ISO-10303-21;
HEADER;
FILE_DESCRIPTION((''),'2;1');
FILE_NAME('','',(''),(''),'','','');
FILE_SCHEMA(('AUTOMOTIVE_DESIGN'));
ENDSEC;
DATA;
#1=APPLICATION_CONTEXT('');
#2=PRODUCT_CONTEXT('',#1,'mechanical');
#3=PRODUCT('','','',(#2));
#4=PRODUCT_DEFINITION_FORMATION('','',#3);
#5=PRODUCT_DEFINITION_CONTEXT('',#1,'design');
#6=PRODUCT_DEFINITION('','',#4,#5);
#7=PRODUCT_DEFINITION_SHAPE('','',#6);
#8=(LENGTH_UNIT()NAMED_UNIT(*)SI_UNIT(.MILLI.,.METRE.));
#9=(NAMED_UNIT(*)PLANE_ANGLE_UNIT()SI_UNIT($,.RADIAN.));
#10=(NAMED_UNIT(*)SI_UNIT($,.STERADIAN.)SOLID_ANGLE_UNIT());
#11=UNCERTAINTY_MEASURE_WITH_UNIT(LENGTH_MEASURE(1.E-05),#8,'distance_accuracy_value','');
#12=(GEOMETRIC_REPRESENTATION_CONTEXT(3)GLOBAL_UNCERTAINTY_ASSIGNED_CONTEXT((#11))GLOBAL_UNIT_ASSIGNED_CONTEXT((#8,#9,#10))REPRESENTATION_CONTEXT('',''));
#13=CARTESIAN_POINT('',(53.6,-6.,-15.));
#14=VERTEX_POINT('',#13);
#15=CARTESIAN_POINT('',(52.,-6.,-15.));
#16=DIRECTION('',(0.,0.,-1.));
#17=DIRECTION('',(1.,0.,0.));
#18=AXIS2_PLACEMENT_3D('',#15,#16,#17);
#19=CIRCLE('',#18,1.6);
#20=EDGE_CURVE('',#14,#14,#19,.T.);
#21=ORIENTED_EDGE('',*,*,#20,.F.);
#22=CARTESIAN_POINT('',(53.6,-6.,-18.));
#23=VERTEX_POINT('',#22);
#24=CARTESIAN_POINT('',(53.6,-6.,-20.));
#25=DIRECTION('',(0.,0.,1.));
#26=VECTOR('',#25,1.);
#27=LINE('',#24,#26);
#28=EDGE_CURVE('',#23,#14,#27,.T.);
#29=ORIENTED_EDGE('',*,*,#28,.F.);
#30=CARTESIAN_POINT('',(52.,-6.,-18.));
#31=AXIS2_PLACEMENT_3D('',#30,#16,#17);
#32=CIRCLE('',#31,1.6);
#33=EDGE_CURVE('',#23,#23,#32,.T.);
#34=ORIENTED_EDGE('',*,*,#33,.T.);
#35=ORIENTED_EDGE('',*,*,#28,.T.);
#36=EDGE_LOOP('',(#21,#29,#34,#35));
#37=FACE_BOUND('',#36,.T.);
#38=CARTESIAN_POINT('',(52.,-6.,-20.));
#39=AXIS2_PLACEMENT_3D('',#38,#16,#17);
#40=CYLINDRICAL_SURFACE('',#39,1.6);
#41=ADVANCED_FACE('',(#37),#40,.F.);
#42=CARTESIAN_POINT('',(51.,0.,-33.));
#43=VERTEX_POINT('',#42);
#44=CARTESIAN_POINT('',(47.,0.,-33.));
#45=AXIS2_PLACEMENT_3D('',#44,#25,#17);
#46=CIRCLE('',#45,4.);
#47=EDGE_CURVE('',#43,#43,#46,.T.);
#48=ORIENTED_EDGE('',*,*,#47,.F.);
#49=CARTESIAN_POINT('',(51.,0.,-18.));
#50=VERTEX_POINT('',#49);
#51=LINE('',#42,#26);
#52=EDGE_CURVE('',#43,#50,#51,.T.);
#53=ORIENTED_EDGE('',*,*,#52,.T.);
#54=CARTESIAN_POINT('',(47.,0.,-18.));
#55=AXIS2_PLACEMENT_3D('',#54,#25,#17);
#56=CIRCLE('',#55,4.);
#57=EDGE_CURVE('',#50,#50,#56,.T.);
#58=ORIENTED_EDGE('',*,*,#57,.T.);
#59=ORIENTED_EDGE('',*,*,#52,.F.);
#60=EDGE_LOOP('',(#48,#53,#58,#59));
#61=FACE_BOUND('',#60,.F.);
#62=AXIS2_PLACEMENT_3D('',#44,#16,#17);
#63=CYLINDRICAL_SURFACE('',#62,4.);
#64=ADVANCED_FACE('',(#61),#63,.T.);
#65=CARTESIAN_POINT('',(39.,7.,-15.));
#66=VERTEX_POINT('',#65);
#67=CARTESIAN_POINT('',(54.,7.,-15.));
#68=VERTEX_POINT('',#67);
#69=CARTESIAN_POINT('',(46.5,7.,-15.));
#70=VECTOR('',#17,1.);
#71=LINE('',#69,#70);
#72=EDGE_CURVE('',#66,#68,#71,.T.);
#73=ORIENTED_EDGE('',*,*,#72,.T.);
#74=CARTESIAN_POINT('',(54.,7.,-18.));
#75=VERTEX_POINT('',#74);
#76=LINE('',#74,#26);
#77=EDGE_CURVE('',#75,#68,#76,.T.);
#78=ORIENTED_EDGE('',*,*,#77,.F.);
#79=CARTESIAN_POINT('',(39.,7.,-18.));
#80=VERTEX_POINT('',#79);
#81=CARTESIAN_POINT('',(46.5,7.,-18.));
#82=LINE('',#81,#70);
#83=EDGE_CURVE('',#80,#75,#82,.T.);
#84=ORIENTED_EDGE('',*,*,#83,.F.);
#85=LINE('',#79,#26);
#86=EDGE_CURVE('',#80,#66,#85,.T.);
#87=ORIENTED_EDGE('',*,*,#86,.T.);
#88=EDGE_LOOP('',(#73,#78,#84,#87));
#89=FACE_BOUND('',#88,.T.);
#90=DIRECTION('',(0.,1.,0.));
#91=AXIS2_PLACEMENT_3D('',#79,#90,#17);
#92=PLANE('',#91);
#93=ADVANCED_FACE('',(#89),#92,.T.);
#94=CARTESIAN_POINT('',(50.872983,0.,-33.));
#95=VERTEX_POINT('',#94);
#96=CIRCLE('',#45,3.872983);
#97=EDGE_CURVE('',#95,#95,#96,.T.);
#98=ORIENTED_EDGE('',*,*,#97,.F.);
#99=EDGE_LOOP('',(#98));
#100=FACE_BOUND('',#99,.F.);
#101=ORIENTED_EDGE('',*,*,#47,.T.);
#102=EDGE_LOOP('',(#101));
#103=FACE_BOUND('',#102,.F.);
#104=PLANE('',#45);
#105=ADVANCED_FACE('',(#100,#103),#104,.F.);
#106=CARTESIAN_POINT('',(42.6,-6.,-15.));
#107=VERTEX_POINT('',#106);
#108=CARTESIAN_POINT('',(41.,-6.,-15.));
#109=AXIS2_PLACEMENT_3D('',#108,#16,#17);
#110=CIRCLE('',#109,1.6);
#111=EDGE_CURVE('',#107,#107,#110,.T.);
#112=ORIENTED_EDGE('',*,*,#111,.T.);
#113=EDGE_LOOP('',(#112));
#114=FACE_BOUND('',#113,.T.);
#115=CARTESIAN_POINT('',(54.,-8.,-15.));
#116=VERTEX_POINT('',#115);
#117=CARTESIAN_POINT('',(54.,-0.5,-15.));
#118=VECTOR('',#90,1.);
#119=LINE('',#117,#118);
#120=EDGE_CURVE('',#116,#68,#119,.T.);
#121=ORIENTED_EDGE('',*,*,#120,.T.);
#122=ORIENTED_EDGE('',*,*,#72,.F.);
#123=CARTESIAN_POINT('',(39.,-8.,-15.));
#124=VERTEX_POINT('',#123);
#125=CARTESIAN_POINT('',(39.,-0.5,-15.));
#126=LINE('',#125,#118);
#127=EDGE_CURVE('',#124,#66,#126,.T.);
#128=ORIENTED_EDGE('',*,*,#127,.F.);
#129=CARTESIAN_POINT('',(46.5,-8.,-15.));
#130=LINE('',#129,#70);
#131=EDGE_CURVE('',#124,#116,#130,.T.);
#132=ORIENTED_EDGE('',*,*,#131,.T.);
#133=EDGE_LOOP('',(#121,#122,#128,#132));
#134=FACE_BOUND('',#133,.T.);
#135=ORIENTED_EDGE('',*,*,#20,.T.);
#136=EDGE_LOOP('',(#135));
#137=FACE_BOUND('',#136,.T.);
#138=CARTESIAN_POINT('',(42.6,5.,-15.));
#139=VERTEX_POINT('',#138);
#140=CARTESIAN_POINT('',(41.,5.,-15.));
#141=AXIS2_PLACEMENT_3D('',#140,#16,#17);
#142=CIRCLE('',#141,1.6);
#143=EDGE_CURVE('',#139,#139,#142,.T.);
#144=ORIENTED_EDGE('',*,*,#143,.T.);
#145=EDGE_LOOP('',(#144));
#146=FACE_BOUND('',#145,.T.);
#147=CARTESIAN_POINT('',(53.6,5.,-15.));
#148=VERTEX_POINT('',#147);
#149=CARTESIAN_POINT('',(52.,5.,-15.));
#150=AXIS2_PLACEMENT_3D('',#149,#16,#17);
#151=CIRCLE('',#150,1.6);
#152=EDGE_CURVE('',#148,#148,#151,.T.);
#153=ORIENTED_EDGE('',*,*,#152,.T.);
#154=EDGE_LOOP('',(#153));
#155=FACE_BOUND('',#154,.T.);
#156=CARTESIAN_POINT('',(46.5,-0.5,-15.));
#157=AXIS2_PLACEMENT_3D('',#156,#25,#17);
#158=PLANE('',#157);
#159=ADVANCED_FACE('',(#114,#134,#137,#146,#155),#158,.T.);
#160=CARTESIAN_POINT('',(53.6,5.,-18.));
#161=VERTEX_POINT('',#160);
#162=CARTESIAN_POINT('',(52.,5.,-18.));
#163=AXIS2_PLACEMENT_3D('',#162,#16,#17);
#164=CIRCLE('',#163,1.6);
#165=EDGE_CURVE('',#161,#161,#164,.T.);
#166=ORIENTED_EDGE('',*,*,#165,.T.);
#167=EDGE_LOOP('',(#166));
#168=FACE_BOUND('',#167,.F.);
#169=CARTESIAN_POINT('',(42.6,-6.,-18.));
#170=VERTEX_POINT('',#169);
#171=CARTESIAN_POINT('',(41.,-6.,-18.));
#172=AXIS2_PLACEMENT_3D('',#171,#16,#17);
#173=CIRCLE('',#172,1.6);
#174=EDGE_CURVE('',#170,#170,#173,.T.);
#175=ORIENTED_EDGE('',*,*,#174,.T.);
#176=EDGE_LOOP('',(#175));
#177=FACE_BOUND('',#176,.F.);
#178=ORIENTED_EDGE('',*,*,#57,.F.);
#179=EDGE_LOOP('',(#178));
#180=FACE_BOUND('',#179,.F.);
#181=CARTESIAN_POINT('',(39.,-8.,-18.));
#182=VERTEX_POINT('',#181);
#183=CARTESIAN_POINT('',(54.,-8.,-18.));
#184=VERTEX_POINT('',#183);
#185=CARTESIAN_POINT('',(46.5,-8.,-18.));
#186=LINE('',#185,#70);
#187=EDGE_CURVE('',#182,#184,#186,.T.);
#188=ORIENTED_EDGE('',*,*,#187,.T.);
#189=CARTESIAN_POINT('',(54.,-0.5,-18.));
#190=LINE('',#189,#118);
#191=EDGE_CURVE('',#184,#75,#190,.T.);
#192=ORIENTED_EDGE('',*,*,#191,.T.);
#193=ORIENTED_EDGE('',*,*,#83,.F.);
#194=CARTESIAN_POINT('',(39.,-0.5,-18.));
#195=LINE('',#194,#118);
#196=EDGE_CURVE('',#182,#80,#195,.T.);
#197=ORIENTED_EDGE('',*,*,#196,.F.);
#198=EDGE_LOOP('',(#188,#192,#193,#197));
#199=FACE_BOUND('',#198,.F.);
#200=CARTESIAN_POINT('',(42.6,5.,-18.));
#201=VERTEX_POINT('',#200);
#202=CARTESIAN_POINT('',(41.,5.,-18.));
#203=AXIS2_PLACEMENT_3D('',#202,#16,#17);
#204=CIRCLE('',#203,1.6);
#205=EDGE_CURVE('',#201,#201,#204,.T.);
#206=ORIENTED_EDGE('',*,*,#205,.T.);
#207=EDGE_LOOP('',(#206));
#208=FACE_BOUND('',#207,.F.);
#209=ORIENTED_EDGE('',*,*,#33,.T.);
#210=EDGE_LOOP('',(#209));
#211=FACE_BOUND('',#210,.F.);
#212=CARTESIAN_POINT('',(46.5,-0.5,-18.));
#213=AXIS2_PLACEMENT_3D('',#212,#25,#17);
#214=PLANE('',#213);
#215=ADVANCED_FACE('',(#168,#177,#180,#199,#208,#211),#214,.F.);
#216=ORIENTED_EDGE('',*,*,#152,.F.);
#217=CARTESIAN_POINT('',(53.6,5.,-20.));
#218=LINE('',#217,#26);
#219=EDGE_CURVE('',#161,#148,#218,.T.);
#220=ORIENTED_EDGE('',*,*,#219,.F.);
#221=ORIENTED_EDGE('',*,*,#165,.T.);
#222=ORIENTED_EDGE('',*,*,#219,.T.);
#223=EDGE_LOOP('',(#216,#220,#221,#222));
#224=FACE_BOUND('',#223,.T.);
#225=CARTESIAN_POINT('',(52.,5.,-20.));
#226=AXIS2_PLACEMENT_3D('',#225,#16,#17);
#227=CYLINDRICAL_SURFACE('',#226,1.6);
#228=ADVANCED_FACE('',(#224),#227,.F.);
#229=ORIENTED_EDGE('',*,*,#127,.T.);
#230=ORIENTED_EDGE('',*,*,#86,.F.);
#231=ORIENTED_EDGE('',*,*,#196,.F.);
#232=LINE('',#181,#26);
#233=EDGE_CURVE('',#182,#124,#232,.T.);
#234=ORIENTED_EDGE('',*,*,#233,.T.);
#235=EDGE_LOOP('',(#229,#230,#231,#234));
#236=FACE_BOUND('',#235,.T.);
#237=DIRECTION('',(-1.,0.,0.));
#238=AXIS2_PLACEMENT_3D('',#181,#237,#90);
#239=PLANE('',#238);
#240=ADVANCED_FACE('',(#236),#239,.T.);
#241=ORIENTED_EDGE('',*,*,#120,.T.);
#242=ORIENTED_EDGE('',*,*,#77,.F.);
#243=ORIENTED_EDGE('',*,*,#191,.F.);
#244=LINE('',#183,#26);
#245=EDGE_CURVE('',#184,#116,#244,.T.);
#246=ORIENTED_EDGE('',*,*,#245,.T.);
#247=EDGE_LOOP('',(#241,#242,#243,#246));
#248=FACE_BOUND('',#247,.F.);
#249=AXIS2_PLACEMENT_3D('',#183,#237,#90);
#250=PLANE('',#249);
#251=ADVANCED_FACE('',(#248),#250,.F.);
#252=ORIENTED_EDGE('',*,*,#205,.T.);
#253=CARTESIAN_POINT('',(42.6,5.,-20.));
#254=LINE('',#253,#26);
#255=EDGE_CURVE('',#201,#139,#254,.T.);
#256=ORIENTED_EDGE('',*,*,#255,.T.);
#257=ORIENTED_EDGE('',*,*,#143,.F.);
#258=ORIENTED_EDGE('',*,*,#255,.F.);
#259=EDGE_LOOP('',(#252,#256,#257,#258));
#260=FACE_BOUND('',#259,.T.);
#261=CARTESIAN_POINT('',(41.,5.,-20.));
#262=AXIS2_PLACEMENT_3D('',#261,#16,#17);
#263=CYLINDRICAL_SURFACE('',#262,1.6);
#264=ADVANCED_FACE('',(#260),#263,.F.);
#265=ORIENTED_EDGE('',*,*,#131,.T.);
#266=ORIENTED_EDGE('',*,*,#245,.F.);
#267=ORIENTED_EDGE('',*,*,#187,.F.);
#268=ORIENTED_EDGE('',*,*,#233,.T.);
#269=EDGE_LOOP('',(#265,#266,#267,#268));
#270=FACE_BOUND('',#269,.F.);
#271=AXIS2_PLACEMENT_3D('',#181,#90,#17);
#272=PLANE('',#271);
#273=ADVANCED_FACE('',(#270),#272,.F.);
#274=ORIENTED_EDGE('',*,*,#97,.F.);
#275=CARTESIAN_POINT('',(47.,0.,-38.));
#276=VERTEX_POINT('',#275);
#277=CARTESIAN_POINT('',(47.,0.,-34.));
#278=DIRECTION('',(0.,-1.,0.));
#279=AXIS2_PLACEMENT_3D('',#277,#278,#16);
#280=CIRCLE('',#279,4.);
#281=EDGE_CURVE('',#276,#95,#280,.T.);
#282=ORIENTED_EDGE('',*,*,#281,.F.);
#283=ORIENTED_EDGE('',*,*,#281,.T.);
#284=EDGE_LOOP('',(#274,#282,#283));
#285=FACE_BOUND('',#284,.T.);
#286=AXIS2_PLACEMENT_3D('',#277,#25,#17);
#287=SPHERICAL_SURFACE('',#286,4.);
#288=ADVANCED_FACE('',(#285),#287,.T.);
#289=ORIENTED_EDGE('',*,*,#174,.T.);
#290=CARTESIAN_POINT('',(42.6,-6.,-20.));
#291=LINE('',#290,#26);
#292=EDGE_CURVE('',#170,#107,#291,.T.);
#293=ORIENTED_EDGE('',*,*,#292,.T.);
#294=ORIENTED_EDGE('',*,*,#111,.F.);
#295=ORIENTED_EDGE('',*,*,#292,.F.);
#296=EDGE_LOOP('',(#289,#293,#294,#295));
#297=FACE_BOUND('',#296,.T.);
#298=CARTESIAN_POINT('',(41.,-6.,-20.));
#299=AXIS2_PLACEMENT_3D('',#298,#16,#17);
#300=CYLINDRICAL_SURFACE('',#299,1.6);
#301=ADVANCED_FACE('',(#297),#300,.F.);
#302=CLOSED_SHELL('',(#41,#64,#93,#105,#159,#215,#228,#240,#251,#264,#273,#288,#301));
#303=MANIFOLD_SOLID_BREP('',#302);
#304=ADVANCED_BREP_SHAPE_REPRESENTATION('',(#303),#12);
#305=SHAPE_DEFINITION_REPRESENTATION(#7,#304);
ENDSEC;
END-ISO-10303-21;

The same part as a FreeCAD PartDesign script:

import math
import FreeCAD as App
import Part
import Sketcher
from FreeCAD import Vector


def add_polygon(sketch, points):
    """Adds a closed chain of lines whose ends are joined by coincident constraints."""
    first, n = sketch.GeometryCount, len(points)
    for a, b in zip(points, points[1:] + points[:1]):
        sketch.addGeometry(Part.LineSegment(App.Vector(*a, 0), App.Vector(*b, 0)), False)
    for i in range(n):
        sketch.addConstraint(Sketcher.Constraint("Coincident", first + i, 2, first + (i + 1) % n, 1))

doc = App.newDocument("Part")
body = doc.addObject("PartDesign::Body", "Body")

sketch1 = body.newObject("Sketcher::SketchObject", "Sketch")
sketch1.AttachmentSupport = (doc.getObject("XY_Plane"), [""])
sketch1.MapMode = "FlatFace"
sketch1.AttachmentOffset = App.Placement(Vector(0, 0, -20), App.Rotation())
sketch1.addGeometry(Part.Circle(Vector(32, 5, 0), Vector(0, 0, 1), 1.6), False)
sketch1.addConstraint(Sketcher.Constraint("Diameter", 0, 3.2))
sketch1.addConstraint(Sketcher.Constraint("DistanceX", -1, 1, 0, 3, 32.0))
sketch1.addConstraint(Sketcher.Constraint("DistanceY", -1, 1, 0, 3, 5.0))
pad1 = body.newObject("PartDesign::Pad", "Pad")
pad1.Profile = sketch1
pad1.Length = 10
body2 = doc.addObject("PartDesign::Body", "Body001")

sketch2 = body2.newObject("Sketcher::SketchObject", "Sketch001")
sketch2.AttachmentSupport = (doc.getObject("XY_Plane001"), [""])
sketch2.MapMode = "FlatFace"
sketch2.AttachmentOffset = App.Placement(Vector(0, 0, -20), App.Rotation())
sketch2.addGeometry(Part.Circle(Vector(21, -6, 0), Vector(0, 0, 1), 1.6), False)
sketch2.addConstraint(Sketcher.Constraint("Diameter", 0, 3.2))
sketch2.addConstraint(Sketcher.Constraint("DistanceX", -1, 1, 0, 3, 21.0))
sketch2.addConstraint(Sketcher.Constraint("DistanceY", 0, 3, -1, 1, 6.0))
pad2 = body2.newObject("PartDesign::Pad", "Pad001")
pad2.Profile = sketch2
pad2.Length = 10
body3 = doc.addObject("PartDesign::Body", "Body002")

sketch3 = body3.newObject("Sketcher::SketchObject", "Sketch002")
sketch3.AttachmentSupport = (doc.getObject("XY_Plane002"), [""])
sketch3.MapMode = "FlatFace"
sketch3.AttachmentOffset = App.Placement(Vector(0, 0, -20), App.Rotation())
sketch3.addGeometry(Part.Circle(Vector(21, 5, 0), Vector(0, 0, 1), 1.6), False)
sketch3.addConstraint(Sketcher.Constraint("Diameter", 0, 3.2))
sketch3.addConstraint(Sketcher.Constraint("DistanceX", -1, 1, 0, 3, 21.0))
sketch3.addConstraint(Sketcher.Constraint("DistanceY", -1, 1, 0, 3, 5.0))
pad3 = body3.newObject("PartDesign::Pad", "Pad002")
pad3.Profile = sketch3
pad3.Length = 10
body4 = doc.addObject("PartDesign::Body", "Body003")
body4.AllowCompound = True

sketch4 = body4.newObject("Sketcher::SketchObject", "Sketch003")
sketch4.AttachmentSupport = (doc.getObject("XY_Plane003"), [""])
sketch4.MapMode = "FlatFace"
sketch4.AttachmentOffset = App.Placement(Vector(0, 0, -20), App.Rotation())
sketch4.addGeometry(Part.Circle(Vector(32, -6, 0), Vector(0, 0, 1), 1.6), False)
sketch4.addConstraint(Sketcher.Constraint("Diameter", 0, 3.2))
sketch4.addConstraint(Sketcher.Constraint("DistanceX", -1, 1, 0, 3, 32.0))
sketch4.addConstraint(Sketcher.Constraint("DistanceY", 0, 3, -1, 1, 6.0))
pad4 = body4.newObject("PartDesign::Pad", "Pad003")
pad4.Profile = sketch4
pad4.Length = 10
doc.recompute()

boolean = body4.newObject("PartDesign::Boolean", "Boolean")
boolean.Type = "Fuse"
boolean.addObjects([body])
doc.recompute()

boolean2 = body4.newObject("PartDesign::Boolean", "Boolean001")
boolean2.Type = "Fuse"
boolean2.addObjects([body2])
doc.recompute()

boolean3 = body4.newObject("PartDesign::Boolean", "Boolean002")
boolean3.Type = "Fuse"
boolean3.addObjects([body3])
body5 = doc.addObject("PartDesign::Body", "Body004")

sketch5 = body5.newObject("Sketcher::SketchObject", "Sketch004")
sketch5.AttachmentSupport = (doc.getObject("XY_Plane004"), [""])
sketch5.MapMode = "FlatFace"
sketch5.AttachmentOffset = App.Placement(Vector(0, 0, 4), App.Rotation())
add_polygon(sketch5, [(-8, 7), (-8, -8), (7, -8), (7, 7)])
sketch5.addConstraint(Sketcher.Constraint("Vertical", 0))
sketch5.addConstraint(Sketcher.Constraint("Horizontal", 1))
sketch5.addConstraint(Sketcher.Constraint("Vertical", 2))
sketch5.addConstraint(Sketcher.Constraint("Horizontal", 3))
sketch5.addConstraint(Sketcher.Constraint("Equal", 3, 0))
sketch5.addConstraint(Sketcher.Constraint("DistanceX", 1, 1, 1, 2, 15.0))
sketch5.addConstraint(Sketcher.Constraint("DistanceX", 0, 2, -1, 1, 8.0))
sketch5.addConstraint(Sketcher.Constraint("DistanceY", 0, 2, -1, 1, 8.0))
pad5 = body5.newObject("PartDesign::Pad", "Pad004")
pad5.Profile = sketch5
pad5.Length = 3
body6 = doc.addObject("PartDesign::Body", "Body005")

sketch6 = body6.newObject("Sketcher::SketchObject", "Sketch005")
sketch6.AttachmentSupport = (doc.getObject("XZ_Plane005"), [""])
sketch6.MapMode = "FlatFace"
sketch6.addGeometry(Part.ArcOfCircle(Part.Circle(Vector(0, -16, 0), Vector(0, 0, 1), 4), math.radians(-90), math.radians(90)), False)
sketch6.addGeometry(Part.LineSegment(Vector(0, -12, 0), Vector(0, -20, 0)), False)
sketch6.addConstraint(Sketcher.Constraint("Coincident", 0, 1, 1, 2))
sketch6.addConstraint(Sketcher.Constraint("Coincident", 1, 1, 0, 2))
sketch6.addConstraint(Sketcher.Constraint("Vertical", 1))
sketch6.addConstraint(Sketcher.Constraint("PointOnObject", 0, 3, -2))
sketch6.addConstraint(Sketcher.Constraint("PointOnObject", 0, 1, -2))
sketch6.addConstraint(Sketcher.Constraint("Radius", 0, 4.0))
sketch6.addConstraint(Sketcher.Constraint("DistanceY", 0, 3, -1, 1, 16.0))
revolution = body6.newObject("PartDesign::Revolution", "Revolution")
revolution.Profile = sketch6
revolution.ReferenceAxis = (sketch6, ["V_Axis"])
revolution.Angle = 360
body7 = doc.addObject("PartDesign::Body", "Body006")

sketch7 = body7.newObject("Sketcher::SketchObject", "Sketch006")
sketch7.AttachmentSupport = (doc.getObject("XY_Plane006"), [""])
sketch7.MapMode = "FlatFace"
sketch7.AttachmentOffset = App.Placement(Vector(0, 0, -15), App.Rotation())
sketch7.addGeometry(Part.Circle(Vector(0, 0, 0), Vector(0, 0, 1), 4), False)
sketch7.addConstraint(Sketcher.Constraint("Coincident", 0, 3, -1, 1))
sketch7.addConstraint(Sketcher.Constraint("Diameter", 0, 8.0))
pad6 = body7.newObject("PartDesign::Pad", "Pad005")
pad6.Profile = sketch7
pad6.Length = 15
doc.recompute()

boolean4 = body7.newObject("PartDesign::Boolean", "Boolean003")
boolean4.Type = "Fuse"
boolean4.addObjects([body6])
body8 = doc.addObject("PartDesign::Body", "Body007")
doc.recompute()

body7.Placement = App.Placement(Vector(0, 0, 4), App.Rotation(Vector(0, 0, 1), 0))
boolean5 = body8.newObject("PartDesign::Boolean", "Boolean004")
boolean5.Type = "Fuse"
boolean5.addObjects([body7])
doc.recompute()

boolean6 = body8.newObject("PartDesign::Boolean", "Boolean005")
boolean6.Type = "Fuse"
boolean6.addObjects([body5])
body9 = doc.addObject("PartDesign::Body", "Body008")
doc.recompute()

body8.Placement = App.Placement(Vector(27, 0, -22), App.Rotation(Vector(0, 0, 1), 0))
boolean7 = body9.newObject("PartDesign::Boolean", "Boolean006")
boolean7.Type = "Fuse"
boolean7.addObjects([body8])
doc.recompute()

boolean8 = body9.newObject("PartDesign::Boolean", "Boolean007")
boolean8.Type = "Cut"
boolean8.addObjects([body4])
body10 = doc.addObject("PartDesign::Body", "Body009")
doc.recompute()

body9.Placement = App.Placement(Vector(20, 0, 0), App.Rotation(Vector(0, 0, 1), 0))
boolean9 = body10.newObject("PartDesign::Boolean", "Boolean008")
boolean9.Type = "Fuse"
boolean9.addObjects([body9])

doc.recompute()
